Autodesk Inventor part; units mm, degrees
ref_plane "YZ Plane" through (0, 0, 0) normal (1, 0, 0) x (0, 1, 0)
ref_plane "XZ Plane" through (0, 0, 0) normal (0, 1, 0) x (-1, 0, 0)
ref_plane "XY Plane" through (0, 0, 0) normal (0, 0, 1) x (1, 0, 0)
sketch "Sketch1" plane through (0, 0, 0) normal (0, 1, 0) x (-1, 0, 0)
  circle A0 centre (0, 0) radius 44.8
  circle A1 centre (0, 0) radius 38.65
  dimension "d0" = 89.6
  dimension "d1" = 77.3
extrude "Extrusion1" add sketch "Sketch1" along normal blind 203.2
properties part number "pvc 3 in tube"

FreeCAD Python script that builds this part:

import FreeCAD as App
import Part
import Sketcher
from FreeCAD import Vector
Q = App.Units.Quantity

doc = App.newDocument("Part")
body = doc.addObject("PartDesign::Body", "Body")

sketch1 = body.newObject("Sketcher::SketchObject", "Sketch")
sketch1.AttachmentSupport = (doc.getObject("XZ_Plane"), [""])
sketch1.MapMode = "FlatFace"
sketch1.addGeometry(Part.Circle(Vector(0, 0, 0), Vector(0, 0, 1), 45), False)
sketch1.addGeometry(Part.Circle(Vector(0, 0, 0), Vector(0, 0, 1), 39), False)
sketch1.addConstraint(Sketcher.Constraint("Coincident", 0, 3, -1, 1))
sketch1.addConstraint(Sketcher.Constraint("Coincident", 1, 3, -1, 1))
sketch1.addConstraint(Sketcher.Constraint("Diameter", 0, Q("89.6 mm")))
sketch1.addConstraint(Sketcher.Constraint("Diameter", 1, Q("77.3 mm")))
pad1 = body.newObject("PartDesign::Pad", "Pad")
pad1.Profile = sketch1
pad1.Length = 203.2
pad1.Reversed = True

doc.recompute()
